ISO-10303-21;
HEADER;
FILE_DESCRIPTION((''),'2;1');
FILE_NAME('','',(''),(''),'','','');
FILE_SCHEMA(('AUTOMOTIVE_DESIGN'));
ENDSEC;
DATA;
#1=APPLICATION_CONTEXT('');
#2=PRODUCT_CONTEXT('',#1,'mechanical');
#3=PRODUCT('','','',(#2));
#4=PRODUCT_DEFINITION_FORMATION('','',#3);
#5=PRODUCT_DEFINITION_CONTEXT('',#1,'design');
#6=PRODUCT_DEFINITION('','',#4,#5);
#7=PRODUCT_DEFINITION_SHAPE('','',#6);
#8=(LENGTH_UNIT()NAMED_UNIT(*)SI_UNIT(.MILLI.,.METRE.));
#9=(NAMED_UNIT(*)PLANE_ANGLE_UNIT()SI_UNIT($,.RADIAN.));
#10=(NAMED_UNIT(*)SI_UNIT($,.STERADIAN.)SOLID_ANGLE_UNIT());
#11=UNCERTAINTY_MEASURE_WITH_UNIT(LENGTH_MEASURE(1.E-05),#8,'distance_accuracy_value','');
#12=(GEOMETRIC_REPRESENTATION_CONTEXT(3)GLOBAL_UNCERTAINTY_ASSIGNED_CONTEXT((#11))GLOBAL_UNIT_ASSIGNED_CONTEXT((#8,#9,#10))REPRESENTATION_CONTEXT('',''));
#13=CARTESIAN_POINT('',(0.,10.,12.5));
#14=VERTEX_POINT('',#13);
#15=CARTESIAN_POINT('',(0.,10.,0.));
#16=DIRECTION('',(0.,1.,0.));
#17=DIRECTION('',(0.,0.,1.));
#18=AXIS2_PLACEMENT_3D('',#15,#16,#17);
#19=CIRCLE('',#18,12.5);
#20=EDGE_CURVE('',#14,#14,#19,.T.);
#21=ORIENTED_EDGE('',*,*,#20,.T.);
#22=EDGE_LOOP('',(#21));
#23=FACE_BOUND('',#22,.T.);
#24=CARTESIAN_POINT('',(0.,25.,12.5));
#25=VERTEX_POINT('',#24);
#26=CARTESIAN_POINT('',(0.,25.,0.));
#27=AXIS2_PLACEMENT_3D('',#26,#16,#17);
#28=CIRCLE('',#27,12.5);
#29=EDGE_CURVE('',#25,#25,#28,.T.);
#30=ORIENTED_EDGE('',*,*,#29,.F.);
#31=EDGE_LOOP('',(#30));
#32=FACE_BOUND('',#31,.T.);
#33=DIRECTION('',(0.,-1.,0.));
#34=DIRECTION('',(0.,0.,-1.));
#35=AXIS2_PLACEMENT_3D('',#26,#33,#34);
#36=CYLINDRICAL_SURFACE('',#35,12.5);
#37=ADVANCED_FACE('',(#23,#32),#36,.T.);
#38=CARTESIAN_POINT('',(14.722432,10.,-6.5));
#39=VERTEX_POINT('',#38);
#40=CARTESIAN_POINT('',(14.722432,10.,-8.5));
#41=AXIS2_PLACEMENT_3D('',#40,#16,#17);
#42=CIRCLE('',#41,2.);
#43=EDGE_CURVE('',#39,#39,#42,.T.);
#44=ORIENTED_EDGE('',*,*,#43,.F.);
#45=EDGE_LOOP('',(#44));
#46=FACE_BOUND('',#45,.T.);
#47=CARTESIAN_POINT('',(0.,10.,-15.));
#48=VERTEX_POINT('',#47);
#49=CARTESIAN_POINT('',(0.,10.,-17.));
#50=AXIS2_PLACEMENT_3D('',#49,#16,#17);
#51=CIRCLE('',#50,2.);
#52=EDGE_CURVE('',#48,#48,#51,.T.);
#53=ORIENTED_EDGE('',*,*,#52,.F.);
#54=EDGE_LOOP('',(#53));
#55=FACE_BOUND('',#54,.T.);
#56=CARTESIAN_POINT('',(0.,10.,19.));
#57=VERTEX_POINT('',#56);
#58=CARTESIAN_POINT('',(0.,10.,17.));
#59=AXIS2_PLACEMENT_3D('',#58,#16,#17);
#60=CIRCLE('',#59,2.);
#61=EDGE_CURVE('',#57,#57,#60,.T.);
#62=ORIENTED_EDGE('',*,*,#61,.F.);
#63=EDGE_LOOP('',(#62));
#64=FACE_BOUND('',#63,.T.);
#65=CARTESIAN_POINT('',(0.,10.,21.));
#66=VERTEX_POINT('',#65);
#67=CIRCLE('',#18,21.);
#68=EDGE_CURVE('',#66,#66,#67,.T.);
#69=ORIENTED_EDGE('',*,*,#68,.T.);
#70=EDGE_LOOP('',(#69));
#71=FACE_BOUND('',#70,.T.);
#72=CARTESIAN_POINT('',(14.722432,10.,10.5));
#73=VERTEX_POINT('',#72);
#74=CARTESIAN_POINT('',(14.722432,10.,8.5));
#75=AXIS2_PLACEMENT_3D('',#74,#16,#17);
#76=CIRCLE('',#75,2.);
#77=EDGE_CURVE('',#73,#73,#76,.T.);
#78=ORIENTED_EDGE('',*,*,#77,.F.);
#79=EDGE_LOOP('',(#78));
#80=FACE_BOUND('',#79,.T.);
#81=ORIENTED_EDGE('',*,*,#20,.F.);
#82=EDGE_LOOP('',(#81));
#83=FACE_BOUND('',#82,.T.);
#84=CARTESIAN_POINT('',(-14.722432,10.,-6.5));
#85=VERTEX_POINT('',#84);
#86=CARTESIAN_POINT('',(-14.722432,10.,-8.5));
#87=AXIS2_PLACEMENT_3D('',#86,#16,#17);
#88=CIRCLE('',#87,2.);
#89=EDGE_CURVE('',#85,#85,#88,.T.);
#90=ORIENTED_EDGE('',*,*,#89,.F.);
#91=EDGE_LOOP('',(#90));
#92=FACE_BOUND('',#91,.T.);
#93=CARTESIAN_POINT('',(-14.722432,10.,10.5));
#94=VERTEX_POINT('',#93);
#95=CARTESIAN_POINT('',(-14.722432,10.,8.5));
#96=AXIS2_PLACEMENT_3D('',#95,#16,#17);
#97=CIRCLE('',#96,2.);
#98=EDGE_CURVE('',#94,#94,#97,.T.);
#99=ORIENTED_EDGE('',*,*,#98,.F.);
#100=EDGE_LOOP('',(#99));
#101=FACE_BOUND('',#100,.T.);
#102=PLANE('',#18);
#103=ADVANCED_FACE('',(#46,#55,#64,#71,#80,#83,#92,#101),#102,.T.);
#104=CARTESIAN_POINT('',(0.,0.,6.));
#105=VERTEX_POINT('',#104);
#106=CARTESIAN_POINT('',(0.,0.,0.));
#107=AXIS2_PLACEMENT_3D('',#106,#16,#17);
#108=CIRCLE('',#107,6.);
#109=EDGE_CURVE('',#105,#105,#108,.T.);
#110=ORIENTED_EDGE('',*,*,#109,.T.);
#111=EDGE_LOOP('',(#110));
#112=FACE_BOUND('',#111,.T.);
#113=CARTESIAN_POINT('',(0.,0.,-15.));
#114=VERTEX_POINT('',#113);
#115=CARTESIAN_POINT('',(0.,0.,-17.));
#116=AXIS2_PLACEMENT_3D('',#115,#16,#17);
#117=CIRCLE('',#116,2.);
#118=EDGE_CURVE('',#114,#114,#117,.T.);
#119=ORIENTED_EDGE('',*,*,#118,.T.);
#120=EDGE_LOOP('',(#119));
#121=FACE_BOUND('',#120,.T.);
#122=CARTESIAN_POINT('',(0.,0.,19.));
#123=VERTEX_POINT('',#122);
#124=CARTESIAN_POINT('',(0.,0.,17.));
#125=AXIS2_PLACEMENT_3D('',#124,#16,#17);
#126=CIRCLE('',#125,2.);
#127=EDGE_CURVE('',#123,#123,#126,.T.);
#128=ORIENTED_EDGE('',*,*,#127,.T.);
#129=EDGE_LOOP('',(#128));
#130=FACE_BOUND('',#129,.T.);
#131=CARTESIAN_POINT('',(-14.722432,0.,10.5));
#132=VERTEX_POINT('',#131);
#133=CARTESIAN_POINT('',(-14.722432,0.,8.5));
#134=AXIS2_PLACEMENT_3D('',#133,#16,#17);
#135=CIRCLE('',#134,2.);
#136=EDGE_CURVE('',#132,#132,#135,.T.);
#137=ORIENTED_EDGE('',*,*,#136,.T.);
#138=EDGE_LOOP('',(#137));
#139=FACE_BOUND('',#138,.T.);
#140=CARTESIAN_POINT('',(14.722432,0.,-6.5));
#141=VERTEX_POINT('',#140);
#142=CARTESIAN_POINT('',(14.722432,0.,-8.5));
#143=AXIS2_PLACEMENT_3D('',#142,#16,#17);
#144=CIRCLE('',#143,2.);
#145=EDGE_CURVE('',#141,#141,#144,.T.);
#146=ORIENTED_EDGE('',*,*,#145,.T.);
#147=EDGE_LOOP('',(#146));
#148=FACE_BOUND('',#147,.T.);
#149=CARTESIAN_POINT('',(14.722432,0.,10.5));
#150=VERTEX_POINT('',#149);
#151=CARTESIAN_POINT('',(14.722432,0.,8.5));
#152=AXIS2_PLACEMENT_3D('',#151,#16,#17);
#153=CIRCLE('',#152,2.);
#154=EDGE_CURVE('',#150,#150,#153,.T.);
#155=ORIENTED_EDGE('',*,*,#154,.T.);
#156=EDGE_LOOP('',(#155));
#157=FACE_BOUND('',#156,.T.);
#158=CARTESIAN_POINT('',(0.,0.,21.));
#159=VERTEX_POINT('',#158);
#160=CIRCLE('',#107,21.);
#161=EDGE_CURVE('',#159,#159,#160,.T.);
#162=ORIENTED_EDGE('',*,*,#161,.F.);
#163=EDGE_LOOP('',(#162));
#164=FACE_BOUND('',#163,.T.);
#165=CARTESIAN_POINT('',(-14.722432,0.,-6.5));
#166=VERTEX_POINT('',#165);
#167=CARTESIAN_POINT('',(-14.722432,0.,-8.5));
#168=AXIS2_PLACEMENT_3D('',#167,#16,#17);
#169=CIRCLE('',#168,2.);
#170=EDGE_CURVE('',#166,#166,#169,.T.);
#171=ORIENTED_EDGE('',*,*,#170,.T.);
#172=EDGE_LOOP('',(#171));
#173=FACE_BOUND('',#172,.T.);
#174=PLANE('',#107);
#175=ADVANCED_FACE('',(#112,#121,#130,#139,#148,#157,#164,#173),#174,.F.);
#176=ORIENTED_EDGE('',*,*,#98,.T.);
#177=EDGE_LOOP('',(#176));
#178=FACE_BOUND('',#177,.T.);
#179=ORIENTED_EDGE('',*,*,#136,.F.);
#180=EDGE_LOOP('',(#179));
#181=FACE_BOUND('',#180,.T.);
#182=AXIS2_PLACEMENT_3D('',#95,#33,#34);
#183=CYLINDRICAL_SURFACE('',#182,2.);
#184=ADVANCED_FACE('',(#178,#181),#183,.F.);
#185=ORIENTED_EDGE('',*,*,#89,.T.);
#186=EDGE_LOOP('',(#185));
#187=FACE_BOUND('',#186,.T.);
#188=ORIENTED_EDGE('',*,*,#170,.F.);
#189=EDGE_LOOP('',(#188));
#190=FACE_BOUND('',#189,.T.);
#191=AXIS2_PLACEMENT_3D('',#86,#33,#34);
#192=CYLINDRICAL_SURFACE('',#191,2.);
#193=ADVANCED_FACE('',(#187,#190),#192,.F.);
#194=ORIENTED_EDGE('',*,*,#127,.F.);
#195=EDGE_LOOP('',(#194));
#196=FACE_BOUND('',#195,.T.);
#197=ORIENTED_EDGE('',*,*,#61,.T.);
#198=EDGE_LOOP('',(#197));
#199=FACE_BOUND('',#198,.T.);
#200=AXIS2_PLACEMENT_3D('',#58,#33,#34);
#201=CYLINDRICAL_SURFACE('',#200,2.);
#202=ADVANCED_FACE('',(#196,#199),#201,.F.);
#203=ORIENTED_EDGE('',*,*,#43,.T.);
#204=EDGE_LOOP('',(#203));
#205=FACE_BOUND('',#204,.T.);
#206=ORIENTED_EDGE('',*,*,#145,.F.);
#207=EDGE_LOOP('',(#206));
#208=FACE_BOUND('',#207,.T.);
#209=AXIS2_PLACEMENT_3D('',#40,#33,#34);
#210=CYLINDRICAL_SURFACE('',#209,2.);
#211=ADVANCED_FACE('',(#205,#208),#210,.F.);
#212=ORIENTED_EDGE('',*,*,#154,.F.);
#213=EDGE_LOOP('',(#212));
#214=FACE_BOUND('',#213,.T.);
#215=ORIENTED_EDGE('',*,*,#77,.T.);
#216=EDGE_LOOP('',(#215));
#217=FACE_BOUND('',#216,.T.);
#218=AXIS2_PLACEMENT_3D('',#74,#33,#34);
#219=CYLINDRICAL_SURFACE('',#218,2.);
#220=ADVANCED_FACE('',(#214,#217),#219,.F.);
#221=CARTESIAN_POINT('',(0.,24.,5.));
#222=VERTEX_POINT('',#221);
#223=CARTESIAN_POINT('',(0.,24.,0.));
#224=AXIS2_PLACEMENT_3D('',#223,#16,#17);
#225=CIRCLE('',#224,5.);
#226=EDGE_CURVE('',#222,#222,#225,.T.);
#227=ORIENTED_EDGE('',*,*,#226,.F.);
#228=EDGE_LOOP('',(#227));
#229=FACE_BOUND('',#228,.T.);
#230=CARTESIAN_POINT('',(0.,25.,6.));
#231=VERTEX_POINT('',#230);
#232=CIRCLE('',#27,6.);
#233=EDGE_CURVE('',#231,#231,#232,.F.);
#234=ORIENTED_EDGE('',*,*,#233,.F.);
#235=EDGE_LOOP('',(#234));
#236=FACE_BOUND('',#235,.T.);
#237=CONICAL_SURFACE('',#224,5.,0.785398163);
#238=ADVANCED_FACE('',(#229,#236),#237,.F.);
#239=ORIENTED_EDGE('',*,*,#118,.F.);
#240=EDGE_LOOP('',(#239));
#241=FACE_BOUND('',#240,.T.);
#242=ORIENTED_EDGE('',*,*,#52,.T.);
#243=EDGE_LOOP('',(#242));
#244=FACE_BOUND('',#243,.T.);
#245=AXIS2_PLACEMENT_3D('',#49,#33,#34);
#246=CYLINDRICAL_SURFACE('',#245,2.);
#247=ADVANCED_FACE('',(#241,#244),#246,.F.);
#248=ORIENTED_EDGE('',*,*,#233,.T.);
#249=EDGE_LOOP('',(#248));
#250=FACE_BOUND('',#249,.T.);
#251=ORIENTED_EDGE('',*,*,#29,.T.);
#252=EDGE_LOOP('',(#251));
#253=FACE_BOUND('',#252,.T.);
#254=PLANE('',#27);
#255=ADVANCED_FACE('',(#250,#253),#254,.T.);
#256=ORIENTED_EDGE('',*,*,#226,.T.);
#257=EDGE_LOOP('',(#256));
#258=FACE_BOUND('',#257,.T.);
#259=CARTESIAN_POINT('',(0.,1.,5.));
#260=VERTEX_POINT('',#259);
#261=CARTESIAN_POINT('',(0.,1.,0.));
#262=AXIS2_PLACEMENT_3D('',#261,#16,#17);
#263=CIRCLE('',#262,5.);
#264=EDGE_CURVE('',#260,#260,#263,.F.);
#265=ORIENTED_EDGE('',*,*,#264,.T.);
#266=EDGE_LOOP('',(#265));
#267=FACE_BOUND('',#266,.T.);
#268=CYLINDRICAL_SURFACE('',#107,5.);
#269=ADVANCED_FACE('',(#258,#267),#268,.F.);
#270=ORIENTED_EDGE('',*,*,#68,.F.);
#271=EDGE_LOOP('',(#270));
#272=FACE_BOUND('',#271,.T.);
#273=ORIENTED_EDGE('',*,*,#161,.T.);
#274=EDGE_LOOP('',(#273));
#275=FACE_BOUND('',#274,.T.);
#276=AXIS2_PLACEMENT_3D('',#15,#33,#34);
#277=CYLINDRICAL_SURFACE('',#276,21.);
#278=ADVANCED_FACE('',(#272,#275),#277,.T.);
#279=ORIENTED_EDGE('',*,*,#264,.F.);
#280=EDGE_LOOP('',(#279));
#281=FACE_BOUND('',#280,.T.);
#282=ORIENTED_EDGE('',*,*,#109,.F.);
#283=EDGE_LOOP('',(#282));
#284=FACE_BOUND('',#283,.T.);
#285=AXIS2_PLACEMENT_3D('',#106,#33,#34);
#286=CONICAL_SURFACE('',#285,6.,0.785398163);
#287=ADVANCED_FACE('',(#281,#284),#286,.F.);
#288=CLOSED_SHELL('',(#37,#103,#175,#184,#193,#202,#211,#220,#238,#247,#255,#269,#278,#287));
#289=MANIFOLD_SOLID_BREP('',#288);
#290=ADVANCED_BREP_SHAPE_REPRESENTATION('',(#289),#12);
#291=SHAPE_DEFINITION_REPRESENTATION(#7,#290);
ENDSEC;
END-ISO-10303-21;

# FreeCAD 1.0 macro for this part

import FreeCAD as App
import Part
import Sketcher


def edges_at(feature, points):
    """Names of the edges that pass closest to the given points."""
    edges = feature.Shape.Edges
    near = lambda p: min(range(len(edges)), key=lambda i: edges[i].distToShape(Part.Vertex(*p))[0])
    return sorted({f"Edge{near(p) + 1}" for p in points})

doc = App.newDocument("Part")
body = doc.addObject("PartDesign::Body", "Body")

# Sketch on XZ plane
sketch1 = doc.addObject("Sketcher::SketchObject", "Sketch")
body.addObject(sketch1)
sketch1.AttachmentSupport = (doc.XZ_Plane, [""])
sketch1.MapMode = "FlatFace"
sketch1.addGeometry([
    Part.Circle(App.Vector(0, 0, 0), App.Vector(0, 0, 1), 21),  # 0
    Part.Circle(App.Vector(-14.722432, -8.5, 0), App.Vector(0, 0, 1), 2),  # 1
    Part.Circle(App.Vector(0, -17, 0), App.Vector(0, 0, 1), 2),  # 2
    Part.Circle(App.Vector(-14.722432, 8.5, 0), App.Vector(0, 0, 1), 2),  # 3
    Part.Circle(App.Vector(14.722432, -8.5, 0), App.Vector(0, 0, 1), 2),  # 4
    Part.Circle(App.Vector(0, 17, 0), App.Vector(0, 0, 1), 2),  # 5
    Part.Circle(App.Vector(14.722432, 8.5, 0), App.Vector(0, 0, 1), 2),  # 6
], False)
sketch1.addConstraint([
    Sketcher.Constraint("Coincident", 0, 3, -1, 1),
    Sketcher.Constraint("Equal", 1, 2),
    Sketcher.Constraint("Equal", 2, 3),
    Sketcher.Constraint("Equal", 3, 4),
    Sketcher.Constraint("Equal", 4, 5),
    Sketcher.Constraint("Equal", 5, 6),
    Sketcher.Constraint("Symmetric", 3, 3, 4, 3, -1, 1),
    Sketcher.Constraint("Symmetric", 2, 3, 5, 3, -1, 1),
    Sketcher.Constraint("Symmetric", 1, 3, 6, 3, -1, 1),
    Sketcher.Constraint("Symmetric", 1, 3, 4, 3, -2),
    Sketcher.Constraint("PointOnObject", 2, 3, -2),
    Sketcher.Constraint("Diameter", 0, 42.0),
    Sketcher.Constraint("Diameter", 1, 4.0),
    Sketcher.Constraint("DistanceY", 2, 3, -1, 1, 17.0),
    Sketcher.Constraint("DistanceY", 1, 3, 3, 3, 17.0),
    Sketcher.Constraint("DistanceX", 1, 3, -1, 1, 14.722432),
])
pad1 = doc.addObject("PartDesign::Pad", "Pad")
body.addObject(pad1)
pad1.Profile = sketch1
pad1.Length = 10
pad1.Reversed = True

# Sketch on XZ plane
sketch2 = doc.addObject("Sketcher::SketchObject", "Sketch001")
body.addObject(sketch2)
sketch2.AttachmentSupport = (doc.XZ_Plane, [""])
sketch2.MapMode = "FlatFace"
sketch2.AttachmentOffset = App.Placement(App.Vector(0, 0, -10), App.Rotation())
sketch2.addGeometry(Part.Circle(App.Vector(0, 0, 0), App.Vector(0, 0, 1), 12.5), False)
sketch2.addConstraint([
    Sketcher.Constraint("Coincident", 0, 3, -1, 1),
    Sketcher.Constraint("Diameter", 0, 25.0),
])
pad2 = doc.addObject("PartDesign::Pad", "Pad001")
body.addObject(pad2)
pad2.Profile = sketch2
pad2.Length = 15
pad2.Reversed = True

# Sketch on XZ plane
sketch3 = doc.addObject("Sketcher::SketchObject", "Sketch002")
body.addObject(sketch3)
sketch3.AttachmentSupport = (doc.XZ_Plane, [""])
sketch3.MapMode = "FlatFace"
sketch3.AttachmentOffset = App.Placement(App.Vector(0, 0, -25), App.Rotation())
sketch3.addGeometry(Part.Circle(App.Vector(0, 0, 0), App.Vector(0, 0, 1), 5), False)
sketch3.addConstraint([
    Sketcher.Constraint("Coincident", 0, 3, -1, 1),
    Sketcher.Constraint("Diameter", 0, 10.0),
])
pocket1 = doc.addObject("PartDesign::Pocket", "Pocket")
body.addObject(pocket1)
pocket1.Profile = sketch3
pocket1.Type = "ThroughAll"
pocket1.Reversed = True
doc.recompute()

chamfer = doc.addObject("PartDesign::Chamfer", "Chamfer")
body.addObject(chamfer)
chamfer.Base = (pocket1, edges_at(pocket1, [(0, 0, -5), (0, 25, -5)]))
chamfer.Size = 1

doc.recompute()
